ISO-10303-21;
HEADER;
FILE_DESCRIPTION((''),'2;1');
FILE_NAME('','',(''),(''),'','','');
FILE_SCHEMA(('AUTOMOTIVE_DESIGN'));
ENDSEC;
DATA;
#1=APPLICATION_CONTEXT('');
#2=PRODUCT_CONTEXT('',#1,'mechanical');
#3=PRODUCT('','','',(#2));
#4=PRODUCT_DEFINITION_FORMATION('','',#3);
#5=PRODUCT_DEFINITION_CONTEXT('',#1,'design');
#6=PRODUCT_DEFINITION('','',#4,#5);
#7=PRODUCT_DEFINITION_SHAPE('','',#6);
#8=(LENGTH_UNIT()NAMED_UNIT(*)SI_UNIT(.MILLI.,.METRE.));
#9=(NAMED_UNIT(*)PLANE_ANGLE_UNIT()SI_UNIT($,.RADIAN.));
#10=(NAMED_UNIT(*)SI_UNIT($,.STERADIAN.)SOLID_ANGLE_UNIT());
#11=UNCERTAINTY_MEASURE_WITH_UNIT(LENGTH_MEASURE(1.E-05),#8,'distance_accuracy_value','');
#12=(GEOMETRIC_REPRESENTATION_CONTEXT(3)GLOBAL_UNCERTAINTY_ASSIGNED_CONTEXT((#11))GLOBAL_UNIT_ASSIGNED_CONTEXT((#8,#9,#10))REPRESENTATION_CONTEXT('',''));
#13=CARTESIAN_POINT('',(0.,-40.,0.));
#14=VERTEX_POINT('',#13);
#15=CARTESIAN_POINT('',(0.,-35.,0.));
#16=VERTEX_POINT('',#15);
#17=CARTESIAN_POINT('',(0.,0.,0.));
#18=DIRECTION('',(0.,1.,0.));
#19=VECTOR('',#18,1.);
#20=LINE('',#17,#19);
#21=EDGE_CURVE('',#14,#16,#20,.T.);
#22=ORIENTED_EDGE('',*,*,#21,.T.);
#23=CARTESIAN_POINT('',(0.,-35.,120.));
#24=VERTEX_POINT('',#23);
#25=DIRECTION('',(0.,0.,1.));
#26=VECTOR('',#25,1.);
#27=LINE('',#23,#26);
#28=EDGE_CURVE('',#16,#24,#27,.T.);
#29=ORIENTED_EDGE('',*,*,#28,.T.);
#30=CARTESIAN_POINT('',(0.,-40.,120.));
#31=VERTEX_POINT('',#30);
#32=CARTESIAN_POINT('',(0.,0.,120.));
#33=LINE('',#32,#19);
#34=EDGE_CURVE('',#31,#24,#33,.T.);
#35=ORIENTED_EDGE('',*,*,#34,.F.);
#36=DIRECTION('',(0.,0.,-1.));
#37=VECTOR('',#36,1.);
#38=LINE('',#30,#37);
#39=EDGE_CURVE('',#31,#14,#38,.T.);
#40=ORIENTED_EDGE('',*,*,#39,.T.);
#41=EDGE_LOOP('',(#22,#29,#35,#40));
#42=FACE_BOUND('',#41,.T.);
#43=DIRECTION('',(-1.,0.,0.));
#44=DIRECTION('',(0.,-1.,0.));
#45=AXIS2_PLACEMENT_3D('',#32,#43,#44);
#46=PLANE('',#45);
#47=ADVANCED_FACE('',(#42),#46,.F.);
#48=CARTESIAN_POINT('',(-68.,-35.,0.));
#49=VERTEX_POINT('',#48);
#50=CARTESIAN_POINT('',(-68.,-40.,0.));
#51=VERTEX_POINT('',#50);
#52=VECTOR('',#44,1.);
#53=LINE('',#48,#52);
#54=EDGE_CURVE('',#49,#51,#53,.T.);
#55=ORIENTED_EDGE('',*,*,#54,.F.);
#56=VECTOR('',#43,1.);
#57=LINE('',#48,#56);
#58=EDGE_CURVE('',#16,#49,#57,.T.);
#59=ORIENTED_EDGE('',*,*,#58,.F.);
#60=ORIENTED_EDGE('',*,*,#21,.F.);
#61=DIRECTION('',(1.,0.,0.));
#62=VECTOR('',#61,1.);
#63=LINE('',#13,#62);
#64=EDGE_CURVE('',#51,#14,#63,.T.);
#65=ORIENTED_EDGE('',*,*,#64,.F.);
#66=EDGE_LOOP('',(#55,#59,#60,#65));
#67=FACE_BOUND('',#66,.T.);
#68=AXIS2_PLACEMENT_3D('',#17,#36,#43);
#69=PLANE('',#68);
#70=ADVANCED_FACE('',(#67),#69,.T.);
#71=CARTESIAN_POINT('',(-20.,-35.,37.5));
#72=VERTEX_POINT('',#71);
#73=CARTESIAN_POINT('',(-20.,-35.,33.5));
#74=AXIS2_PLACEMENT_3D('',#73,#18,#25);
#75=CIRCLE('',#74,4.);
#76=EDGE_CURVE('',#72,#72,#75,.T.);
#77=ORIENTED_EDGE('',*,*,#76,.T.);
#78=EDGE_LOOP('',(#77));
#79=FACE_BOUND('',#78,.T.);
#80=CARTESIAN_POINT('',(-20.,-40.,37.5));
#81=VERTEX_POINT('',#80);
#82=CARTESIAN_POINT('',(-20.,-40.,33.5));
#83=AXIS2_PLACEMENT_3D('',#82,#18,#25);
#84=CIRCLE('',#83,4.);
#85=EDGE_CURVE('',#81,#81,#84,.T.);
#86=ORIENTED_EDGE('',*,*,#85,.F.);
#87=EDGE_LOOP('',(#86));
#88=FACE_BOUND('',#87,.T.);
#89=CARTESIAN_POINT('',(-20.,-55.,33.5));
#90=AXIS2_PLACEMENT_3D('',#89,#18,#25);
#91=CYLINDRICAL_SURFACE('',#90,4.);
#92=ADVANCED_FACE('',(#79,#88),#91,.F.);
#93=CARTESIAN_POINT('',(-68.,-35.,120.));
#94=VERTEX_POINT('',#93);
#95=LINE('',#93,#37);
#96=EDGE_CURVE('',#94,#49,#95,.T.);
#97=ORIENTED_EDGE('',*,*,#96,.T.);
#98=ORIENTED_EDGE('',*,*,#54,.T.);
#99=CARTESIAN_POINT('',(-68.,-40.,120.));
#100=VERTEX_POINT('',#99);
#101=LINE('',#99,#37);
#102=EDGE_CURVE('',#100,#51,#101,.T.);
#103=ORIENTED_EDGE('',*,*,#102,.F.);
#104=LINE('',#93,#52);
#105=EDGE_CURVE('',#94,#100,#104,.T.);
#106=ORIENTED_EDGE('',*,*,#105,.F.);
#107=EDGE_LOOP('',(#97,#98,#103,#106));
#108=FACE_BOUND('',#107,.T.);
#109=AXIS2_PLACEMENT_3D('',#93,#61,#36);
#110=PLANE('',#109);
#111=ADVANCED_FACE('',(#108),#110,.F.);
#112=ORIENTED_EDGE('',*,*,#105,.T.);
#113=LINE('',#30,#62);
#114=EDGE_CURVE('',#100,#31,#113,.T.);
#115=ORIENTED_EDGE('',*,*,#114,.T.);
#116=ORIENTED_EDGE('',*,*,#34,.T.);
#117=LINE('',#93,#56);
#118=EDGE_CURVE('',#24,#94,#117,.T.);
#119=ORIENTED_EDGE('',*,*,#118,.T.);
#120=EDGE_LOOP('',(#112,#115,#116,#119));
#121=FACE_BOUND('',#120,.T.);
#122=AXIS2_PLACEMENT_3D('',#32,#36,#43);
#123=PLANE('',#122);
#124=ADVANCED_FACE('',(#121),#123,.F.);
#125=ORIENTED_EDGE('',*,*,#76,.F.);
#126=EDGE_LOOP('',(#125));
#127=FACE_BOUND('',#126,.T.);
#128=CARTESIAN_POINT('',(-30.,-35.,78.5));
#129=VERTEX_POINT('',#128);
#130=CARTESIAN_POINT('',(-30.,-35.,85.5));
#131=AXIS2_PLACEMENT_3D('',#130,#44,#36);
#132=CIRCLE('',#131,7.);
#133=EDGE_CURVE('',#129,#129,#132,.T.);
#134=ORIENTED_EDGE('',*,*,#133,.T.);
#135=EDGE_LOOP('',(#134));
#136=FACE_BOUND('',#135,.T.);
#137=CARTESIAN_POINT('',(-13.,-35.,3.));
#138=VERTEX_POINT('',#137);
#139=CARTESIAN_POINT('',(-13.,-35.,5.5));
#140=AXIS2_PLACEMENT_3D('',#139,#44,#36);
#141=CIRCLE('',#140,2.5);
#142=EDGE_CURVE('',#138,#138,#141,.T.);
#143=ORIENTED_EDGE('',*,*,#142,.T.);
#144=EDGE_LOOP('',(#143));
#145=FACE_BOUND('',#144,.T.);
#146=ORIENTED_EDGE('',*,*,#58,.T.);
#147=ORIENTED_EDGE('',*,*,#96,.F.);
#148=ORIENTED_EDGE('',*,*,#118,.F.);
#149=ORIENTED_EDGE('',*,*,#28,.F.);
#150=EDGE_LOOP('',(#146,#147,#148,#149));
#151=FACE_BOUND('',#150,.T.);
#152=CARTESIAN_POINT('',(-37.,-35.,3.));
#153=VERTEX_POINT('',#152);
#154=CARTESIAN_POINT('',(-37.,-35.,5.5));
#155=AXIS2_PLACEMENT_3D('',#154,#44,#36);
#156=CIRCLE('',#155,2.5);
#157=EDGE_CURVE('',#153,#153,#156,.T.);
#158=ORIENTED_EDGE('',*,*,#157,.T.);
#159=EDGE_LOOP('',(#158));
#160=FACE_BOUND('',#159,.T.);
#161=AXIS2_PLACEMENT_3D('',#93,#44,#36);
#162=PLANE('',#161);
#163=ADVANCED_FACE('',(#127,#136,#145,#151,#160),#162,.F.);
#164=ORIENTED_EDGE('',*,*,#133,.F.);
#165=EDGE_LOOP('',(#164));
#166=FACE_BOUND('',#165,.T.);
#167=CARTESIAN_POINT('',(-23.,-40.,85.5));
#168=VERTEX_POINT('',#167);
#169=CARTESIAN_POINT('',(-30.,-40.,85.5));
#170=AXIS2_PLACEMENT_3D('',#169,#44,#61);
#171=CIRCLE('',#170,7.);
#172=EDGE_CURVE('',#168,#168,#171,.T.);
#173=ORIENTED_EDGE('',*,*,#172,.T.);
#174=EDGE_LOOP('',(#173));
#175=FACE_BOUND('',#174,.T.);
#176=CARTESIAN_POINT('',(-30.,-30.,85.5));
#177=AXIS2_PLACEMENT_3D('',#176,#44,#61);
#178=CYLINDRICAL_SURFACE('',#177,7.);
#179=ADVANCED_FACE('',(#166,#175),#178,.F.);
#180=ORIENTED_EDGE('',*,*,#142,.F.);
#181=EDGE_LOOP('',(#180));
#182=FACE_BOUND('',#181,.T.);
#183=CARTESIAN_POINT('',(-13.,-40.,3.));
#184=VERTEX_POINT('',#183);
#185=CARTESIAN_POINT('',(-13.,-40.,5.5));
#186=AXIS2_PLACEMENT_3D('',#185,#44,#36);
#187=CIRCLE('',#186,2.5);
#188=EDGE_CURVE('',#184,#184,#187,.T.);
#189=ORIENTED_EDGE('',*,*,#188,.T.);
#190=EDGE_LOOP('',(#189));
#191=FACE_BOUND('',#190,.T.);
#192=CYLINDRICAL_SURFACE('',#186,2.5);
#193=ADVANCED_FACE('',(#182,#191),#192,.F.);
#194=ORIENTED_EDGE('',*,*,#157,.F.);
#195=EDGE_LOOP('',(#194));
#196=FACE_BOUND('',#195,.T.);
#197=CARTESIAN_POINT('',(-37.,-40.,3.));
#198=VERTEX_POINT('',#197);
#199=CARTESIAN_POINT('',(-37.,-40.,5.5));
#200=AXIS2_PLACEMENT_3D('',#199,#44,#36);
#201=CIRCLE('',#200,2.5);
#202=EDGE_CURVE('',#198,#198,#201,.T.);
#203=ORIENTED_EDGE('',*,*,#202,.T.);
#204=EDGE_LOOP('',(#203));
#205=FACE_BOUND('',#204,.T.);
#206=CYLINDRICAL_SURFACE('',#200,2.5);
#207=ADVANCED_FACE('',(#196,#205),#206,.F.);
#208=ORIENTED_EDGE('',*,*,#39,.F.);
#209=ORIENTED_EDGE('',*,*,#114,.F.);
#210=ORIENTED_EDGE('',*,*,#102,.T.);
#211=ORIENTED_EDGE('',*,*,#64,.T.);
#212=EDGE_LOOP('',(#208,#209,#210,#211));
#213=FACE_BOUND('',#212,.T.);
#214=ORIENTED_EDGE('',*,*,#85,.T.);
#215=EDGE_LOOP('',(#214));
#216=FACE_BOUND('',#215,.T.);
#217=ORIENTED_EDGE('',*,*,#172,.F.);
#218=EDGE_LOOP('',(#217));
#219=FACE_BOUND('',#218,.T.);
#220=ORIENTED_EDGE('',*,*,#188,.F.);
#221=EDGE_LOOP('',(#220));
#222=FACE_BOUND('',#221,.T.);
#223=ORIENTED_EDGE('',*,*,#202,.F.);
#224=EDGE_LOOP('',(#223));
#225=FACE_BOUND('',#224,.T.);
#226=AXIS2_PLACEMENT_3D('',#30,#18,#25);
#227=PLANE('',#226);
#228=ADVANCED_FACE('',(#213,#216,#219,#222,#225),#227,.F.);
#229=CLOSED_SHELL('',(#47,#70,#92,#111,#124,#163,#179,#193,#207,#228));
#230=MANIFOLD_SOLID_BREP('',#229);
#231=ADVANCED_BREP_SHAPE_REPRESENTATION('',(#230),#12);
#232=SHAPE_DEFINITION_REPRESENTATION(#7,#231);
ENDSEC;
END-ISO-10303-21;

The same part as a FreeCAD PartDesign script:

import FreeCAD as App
import Part
import Sketcher

V = App.Vector
Q = App.Units.Quantity

doc = App.newDocument("Part")
body = doc.addObject("PartDesign::Body", "Body")

# Sketch on XY plane
sketch1 = body.newObject("Sketcher::SketchObject", "Sketch")
sketch1.AttachmentSupport = (doc.getObject("XY_Plane"), [""])
sketch1.MapMode = "FlatFace"
sketch1.addGeometry([
    Part.LineSegment(V(0, -40, 0), V(0, 0, 0)),  # 0
    Part.LineSegment(V(0, 0, 0), V(-5, 0, 0)),  # 1
    Part.LineSegment(V(-5, 0, 0), V(-5, -35, 0)),  # 2
    Part.LineSegment(V(-5, -35, 0), V(-68, -35, 0)),  # 3
    Part.LineSegment(V(-68, -35, 0), V(-68, -40, 0)),  # 4
    Part.LineSegment(V(-68, -40, 0), V(0, -40, 0)),  # 5
], False)
sketch1.addConstraint([
    Sketcher.Constraint("Coincident", 0, 2, 1, 1),
    Sketcher.Constraint("Coincident", 1, 2, 2, 1),
    Sketcher.Constraint("Coincident", 2, 2, 3, 1),
    Sketcher.Constraint("Coincident", 3, 2, 4, 1),
    Sketcher.Constraint("Coincident", 4, 2, 5, 1),
    Sketcher.Constraint("Coincident", 5, 2, 0, 1),
    Sketcher.Constraint("Vertical", 0),
    Sketcher.Constraint("Horizontal", 1),
    Sketcher.Constraint("Vertical", 2),
    Sketcher.Constraint("Horizontal", 3),
    Sketcher.Constraint("Vertical", 4),
    Sketcher.Constraint("Horizontal", 5),
    Sketcher.Constraint("Coincident", 0, 2, -1, 1),
    Sketcher.Constraint("Equal", 1, 4),
    Sketcher.Constraint("DistanceX", 1, 2, 1, 1, Q("5 mm")),
    Sketcher.Constraint("DistanceX", 3, 2, 3, 1, Q("63 mm")),
    Sketcher.Constraint("DistanceY", 0, 1, 0, 2, Q("40 mm")),
])
pad1 = body.newObject("PartDesign::Pad", "Pad")
pad1.Profile = sketch1
pad1.Length = 120

# Sketch on YZ plane
sketch2 = body.newObject("Sketcher::SketchObject", "Sketch001")
sketch2.AttachmentSupport = (doc.getObject("YZ_Plane"), [""])
sketch2.MapMode = "FlatFace"
sketch2.AttachmentOffset = App.Placement(V(0, 0, -5), App.Rotation())
sketch2.addGeometry([
    Part.LineSegment(V(0, 0, 0), V(-35, 0, 0)),  # 0
    Part.LineSegment(V(-35, 0, 0), V(-35, 45, 0)),  # 1
    Part.LineSegment(V(-35, 45, 0), V(0, 45, 0)),  # 2
    Part.LineSegment(V(0, 45, 0), V(0, 0, 0)),  # 3
    Part.LineSegment(V(0, 75, 0), V(-35, 75, 0)),  # 4
    Part.LineSegment(V(-35, 75, 0), V(-35, 120, 0)),  # 5
    Part.LineSegment(V(-35, 120, 0), V(0, 120, 0)),  # 6
    Part.LineSegment(V(0, 120, 0), V(0, 75, 0)),  # 7
], False)
sketch2.addConstraint([
    Sketcher.Constraint("Coincident", 0, 2, 1, 1),
    Sketcher.Constraint("Coincident", 1, 2, 2, 1),
    Sketcher.Constraint("Coincident", 2, 2, 3, 1),
    Sketcher.Constraint("Coincident", 3, 2, 0, 1),
    Sketcher.Constraint("Coincident", 4, 2, 5, 1),
    Sketcher.Constraint("Coincident", 5, 2, 6, 1),
    Sketcher.Constraint("Coincident", 6, 2, 7, 1),
    Sketcher.Constraint("Coincident", 7, 2, 4, 1),
    Sketcher.Constraint("Horizontal", 0),
    Sketcher.Constraint("Vertical", 1),
    Sketcher.Constraint("Horizontal", 2),
    Sketcher.Constraint("Vertical", 3),
    Sketcher.Constraint("Horizontal", 4),
    Sketcher.Constraint("Vertical", 5),
    Sketcher.Constraint("Horizontal", 6),
    Sketcher.Constraint("Vertical", 7),
    Sketcher.Constraint("Coincident", 3, 2, -1, 1),
    Sketcher.Constraint("PointOnObject", 6, 2, -2),
    Sketcher.Constraint("Vertical", 1, 2, 4, 2),
    Sketcher.Constraint("Equal", 3, 5),
    Sketcher.Constraint("DistanceX", 0, 2, 0, 1, Q("35 mm")),
    Sketcher.Constraint("DistanceY", 1, 1, 1, 2, Q("45 mm")),
    Sketcher.Constraint("DistanceY", -1, 1, 4, 2, Q("75 mm")),
])
pocket1 = body.newObject("PartDesign::Pocket", "Pocket")
pocket1.Profile = sketch2
pocket1.Length = 10
pocket1.Reversed = True

# Sketch on XZ plane
sketch3 = body.newObject("Sketcher::SketchObject", "Sketch002")
sketch3.AttachmentSupport = (doc.getObject("XZ_Plane"), [""])
sketch3.MapMode = "FlatFace"
sketch3.AttachmentOffset = App.Placement(V(0, 0, 40), App.Rotation())
sketch3.addGeometry(Part.Circle(V(-30, 86, 0), V(0, 0, 1), 7), False)
sketch3.addConstraint([
    Sketcher.Constraint("Diameter", 0, Q("14 mm")),
    Sketcher.Constraint("DistanceX", 0, 3, -1, 1, Q("30 mm")),
    Sketcher.Constraint("DistanceY", -1, 1, 0, 3, Q("85.5 mm")),
])
pocket2 = body.newObject("PartDesign::Pocket", "Pocket001")
pocket2.Profile = sketch3
pocket2.Length = 10

# Sketch on YZ plane
sketch4 = body.newObject("Sketcher::SketchObject", "Sketch003")
sketch4.AttachmentSupport = (doc.getObject("YZ_Plane"), [""])
sketch4.MapMode = "FlatFace"
sketch4.AttachmentOffset = App.Placement(V(0, 0, -5), App.Rotation())
sketch4.addGeometry([
    Part.Circle(V(-5, 50, 0), V(0, 0, 1), 3),
    Part.Circle(V(-25, 50, 0), V(0, 0, 1), 3),
], False)
sketch4.addConstraint([
    Sketcher.Constraint("Equal", 0, 1),
    Sketcher.Constraint("Horizontal", 0, 3, 1, 3),
    Sketcher.Constraint("Diameter", 0, Q("6 mm")),
    Sketcher.Constraint("DistanceX", 0, 3, -1, 1, Q("5 mm")),
    Sketcher.Constraint("DistanceY", -1, 1, 0, 3, Q("50 mm")),
    Sketcher.Constraint("DistanceX", 1, 3, -1, 1, Q("25 mm")),
])
pocket3 = body.newObject("PartDesign::Pocket", "Pocket002")
pocket3.Profile = sketch4
pocket3.Type = "ThroughAll"
pocket3.Reversed = True

# Sketch on XZ plane
sketch5 = body.newObject("Sketcher::SketchObject", "Sketch004")
sketch5.AttachmentSupport = (doc.getObject("XZ_Plane"), [""])
sketch5.MapMode = "FlatFace"
sketch5.AttachmentOffset = App.Placement(V(0, 0, 40), App.Rotation())
sketch5.addGeometry([
    Part.Circle(V(-37, 5.5, 0), V(0, 0, 1), 2.5),
    Part.Circle(V(-13, 5.5, 0), V(0, 0, 1), 2.5),
], False)
sketch5.addConstraint([
    Sketcher.Constraint("Equal", 0, 1),
    Sketcher.Constraint("Horizontal", 0, 3, 1, 3),
    Sketcher.Constraint("Diameter", 0, Q("5 mm")),
    Sketcher.Constraint("DistanceX", 0, 3, -1, 1, Q("37 mm")),
    Sketcher.Constraint("DistanceX", 1, 3, -1, 1, Q("13 mm")),
    Sketcher.Constraint("DistanceY", -1, 1, 0, 3, Q("5.5 mm")),
])
doc.recompute()
hole = body.newObject("PartDesign::Hole", "Hole")
hole.Profile = sketch5
hole.ThreadType = "None"
hole.Diameter = 5
hole.DepthType = "Dimension"
hole.Depth = 15
hole.DrillPoint = "Angled"
hole.DrillPointAngle = 118

# Sketch on YZ plane
sketch6 = body.newObject("Sketcher::SketchObject", "Sketch005")
sketch6.AttachmentSupport = (doc.getObject("YZ_Plane"), [""])
sketch6.MapMode = "FlatFace"
sketch6.AttachmentOffset = App.Placement(V(0, 0, -5), App.Rotation())
sketch6.addGeometry([
    Part.LineSegment(V(0, 45, 0), V(-35, 45, 0)),
    Part.LineSegment(V(-35, 45, 0), V(-35, 75, 0)),
    Part.LineSegment(V(-35, 75, 0), V(0, 75, 0)),
    Part.LineSegment(V(0, 75, 0), V(0, 45, 0)),
], False)
sketch6.addConstraint([
    Sketcher.Constraint("Coincident", 0, 2, 1, 1),
    Sketcher.Constraint("Coincident", 1, 2, 2, 1),
    Sketcher.Constraint("Coincident", 2, 2, 3, 1),
    Sketcher.Constraint("Coincident", 3, 2, 0, 1),
    Sketcher.Constraint("Horizontal", 0),
    Sketcher.Constraint("Vertical", 1),
    Sketcher.Constraint("Horizontal", 2),
    Sketcher.Constraint("Vertical", 3),
    Sketcher.Constraint("PointOnObject", 2, 2, -2),
    Sketcher.Constraint("DistanceX", 0, 2, 0, 1, Q("35 mm")),
    Sketcher.Constraint("DistanceY", 1, 1, 1, 2, Q("30 mm")),
    Sketcher.Constraint("DistanceY", -1, 1, 0, 2, Q("45 mm")),
])
pocket4 = body.newObject("PartDesign::Pocket", "Pocket003")
pocket4.Profile = sketch6
pocket4.Length = 10
pocket4.Reversed = True

# Sketch on XZ plane
sketch7 = body.newObject("Sketcher::SketchObject", "Sketch006")
sketch7.AttachmentSupport = (doc.getObject("XZ_Plane"), [""])
sketch7.MapMode = "FlatFace"
sketch7.AttachmentOffset = App.Placement(V(0, 0, 35), App.Rotation())
sketch7.addGeometry(Part.Circle(V(-20, 33.5, 0), V(0, 0, 1), 4), False)
sketch7.addConstraint([
    Sketcher.Constraint("Diameter", 0, Q("8 mm")),
    Sketcher.Constraint("DistanceX", 0, 3, -1, 1, Q("20 mm")),
    Sketcher.Constraint("DistanceY", -1, 1, 0, 3, Q("33.5 mm")),
])
pocket5 = body.newObject("PartDesign::Pocket", "Pocket004")
pocket5.Profile = sketch7
pocket5.Length = 20
pocket5.Reversed = True

doc.recompute()
